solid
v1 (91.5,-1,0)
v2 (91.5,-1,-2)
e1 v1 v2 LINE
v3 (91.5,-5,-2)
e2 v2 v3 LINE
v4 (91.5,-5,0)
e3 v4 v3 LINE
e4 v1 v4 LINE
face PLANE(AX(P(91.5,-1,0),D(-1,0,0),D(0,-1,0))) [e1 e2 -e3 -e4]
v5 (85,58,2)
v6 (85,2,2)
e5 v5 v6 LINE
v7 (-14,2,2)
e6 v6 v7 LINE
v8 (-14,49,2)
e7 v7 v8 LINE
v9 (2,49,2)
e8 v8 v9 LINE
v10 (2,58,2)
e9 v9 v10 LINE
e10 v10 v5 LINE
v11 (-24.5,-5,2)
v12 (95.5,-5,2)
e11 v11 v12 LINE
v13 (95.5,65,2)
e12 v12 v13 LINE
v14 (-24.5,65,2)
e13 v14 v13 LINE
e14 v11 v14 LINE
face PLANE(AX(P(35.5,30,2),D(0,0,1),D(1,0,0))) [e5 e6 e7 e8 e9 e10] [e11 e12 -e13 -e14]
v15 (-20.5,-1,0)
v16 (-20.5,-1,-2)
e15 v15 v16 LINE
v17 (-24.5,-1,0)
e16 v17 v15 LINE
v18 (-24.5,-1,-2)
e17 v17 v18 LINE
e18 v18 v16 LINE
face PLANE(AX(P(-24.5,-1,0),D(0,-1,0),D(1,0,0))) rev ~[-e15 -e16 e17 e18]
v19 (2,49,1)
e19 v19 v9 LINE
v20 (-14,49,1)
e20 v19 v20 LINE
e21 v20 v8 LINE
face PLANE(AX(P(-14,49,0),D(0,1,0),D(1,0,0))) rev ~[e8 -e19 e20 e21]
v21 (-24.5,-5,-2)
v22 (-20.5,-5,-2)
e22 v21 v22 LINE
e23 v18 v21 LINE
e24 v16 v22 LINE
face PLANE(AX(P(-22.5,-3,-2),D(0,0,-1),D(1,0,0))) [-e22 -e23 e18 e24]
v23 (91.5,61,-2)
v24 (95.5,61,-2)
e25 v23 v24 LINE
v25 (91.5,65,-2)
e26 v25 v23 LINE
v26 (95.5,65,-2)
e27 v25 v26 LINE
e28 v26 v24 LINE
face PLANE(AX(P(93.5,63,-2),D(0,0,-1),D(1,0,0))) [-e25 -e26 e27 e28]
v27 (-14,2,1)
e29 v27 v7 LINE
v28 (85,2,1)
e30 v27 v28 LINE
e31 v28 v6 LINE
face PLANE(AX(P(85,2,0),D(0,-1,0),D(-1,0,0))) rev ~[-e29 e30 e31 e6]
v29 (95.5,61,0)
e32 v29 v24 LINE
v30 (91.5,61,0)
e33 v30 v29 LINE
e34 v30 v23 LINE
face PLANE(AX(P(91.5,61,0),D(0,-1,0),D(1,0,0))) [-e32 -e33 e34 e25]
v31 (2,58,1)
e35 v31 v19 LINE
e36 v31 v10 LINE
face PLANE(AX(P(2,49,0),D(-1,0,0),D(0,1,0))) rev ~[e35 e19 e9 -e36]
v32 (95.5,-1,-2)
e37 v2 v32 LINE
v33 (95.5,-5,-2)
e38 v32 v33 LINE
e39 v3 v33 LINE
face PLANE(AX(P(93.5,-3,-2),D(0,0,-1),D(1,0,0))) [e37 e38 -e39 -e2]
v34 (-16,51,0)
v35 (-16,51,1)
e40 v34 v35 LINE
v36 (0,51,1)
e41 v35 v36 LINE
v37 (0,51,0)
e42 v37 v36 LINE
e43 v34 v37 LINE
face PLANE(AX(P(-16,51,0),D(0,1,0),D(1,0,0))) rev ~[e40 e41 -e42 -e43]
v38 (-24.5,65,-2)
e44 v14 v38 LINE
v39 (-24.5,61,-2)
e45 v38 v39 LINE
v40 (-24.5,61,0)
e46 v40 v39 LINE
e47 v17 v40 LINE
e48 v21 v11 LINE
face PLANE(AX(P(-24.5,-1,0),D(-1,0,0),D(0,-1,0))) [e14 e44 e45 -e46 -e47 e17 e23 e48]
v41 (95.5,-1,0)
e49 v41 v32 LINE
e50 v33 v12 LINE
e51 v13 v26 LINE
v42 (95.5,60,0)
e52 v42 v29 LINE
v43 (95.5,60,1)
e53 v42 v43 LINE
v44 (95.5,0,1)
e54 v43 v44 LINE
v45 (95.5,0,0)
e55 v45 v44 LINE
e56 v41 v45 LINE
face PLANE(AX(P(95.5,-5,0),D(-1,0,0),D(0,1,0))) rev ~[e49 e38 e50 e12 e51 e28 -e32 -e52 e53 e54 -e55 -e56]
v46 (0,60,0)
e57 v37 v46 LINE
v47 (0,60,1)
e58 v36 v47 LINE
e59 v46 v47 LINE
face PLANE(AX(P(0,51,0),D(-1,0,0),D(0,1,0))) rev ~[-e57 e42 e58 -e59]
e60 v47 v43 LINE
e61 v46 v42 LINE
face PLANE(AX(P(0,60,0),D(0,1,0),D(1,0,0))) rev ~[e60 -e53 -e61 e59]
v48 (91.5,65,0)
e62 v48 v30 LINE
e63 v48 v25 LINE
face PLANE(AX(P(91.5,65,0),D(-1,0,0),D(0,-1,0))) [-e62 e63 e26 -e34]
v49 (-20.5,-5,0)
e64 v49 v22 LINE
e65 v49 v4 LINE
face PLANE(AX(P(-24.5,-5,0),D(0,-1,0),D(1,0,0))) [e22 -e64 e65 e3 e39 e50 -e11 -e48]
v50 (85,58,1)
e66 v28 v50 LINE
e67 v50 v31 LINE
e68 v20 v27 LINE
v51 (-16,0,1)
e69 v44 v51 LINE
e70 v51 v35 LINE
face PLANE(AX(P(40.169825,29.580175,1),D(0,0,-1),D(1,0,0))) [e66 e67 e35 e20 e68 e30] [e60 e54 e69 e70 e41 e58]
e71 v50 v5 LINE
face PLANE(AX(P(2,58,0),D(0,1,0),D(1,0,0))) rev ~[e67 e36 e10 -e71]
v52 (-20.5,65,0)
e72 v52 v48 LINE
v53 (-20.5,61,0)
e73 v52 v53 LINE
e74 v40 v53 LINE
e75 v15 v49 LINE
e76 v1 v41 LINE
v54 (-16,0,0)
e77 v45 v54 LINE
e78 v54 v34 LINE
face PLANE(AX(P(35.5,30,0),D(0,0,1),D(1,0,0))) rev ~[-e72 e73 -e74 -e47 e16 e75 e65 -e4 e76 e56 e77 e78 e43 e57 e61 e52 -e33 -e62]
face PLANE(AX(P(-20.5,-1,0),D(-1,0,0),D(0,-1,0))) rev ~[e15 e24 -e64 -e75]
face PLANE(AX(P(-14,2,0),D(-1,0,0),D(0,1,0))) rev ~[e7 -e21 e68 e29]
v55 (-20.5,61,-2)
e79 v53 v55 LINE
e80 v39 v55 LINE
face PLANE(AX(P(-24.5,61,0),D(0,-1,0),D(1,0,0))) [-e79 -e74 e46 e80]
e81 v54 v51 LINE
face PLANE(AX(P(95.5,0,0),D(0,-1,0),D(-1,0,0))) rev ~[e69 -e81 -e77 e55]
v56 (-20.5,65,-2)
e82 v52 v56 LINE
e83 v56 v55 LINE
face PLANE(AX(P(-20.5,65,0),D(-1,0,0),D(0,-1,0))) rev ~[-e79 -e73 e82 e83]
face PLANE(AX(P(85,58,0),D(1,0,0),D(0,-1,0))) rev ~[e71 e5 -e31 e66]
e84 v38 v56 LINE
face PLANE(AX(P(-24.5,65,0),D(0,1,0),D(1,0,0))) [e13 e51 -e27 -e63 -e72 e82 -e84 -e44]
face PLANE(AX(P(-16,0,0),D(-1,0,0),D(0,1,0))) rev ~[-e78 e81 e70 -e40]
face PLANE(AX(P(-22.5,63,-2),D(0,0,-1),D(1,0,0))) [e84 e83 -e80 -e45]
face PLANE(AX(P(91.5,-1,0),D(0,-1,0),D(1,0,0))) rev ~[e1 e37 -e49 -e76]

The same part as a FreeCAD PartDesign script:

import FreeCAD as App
import Part
import Sketcher
from FreeCAD import Vector

doc = App.newDocument("Part")
body = doc.addObject("PartDesign::Body", "Body")

# Sketch on XY plane
sketch1 = doc.addObject("Sketcher::SketchObject", "Sketch")
body.addObject(sketch1)
sketch1.AttachmentSupport = (doc.XY_Plane, [""])
sketch1.MapMode = "FlatFace"
sketch1.addGeometry([
    Part.LineSegment(Vector(-24, 65, 0), Vector(-24, -5, 0)),  # 0
    Part.LineSegment(Vector(-24, -5, 0), Vector(96, -5, 0)),  # 1
    Part.LineSegment(Vector(96, -5, 0), Vector(96, 65, 0)),  # 2
    Part.LineSegment(Vector(96, 65, 0), Vector(-24, 65, 0)),  # 3
    Part.LineSegment(Vector(-14, 49, 0), Vector(2, 49, 0)),  # 4
    Part.LineSegment(Vector(2, 49, 0), Vector(2, 58, 0)),  # 5
    Part.LineSegment(Vector(2, 58, 0), Vector(85, 58, 0)),  # 6
    Part.LineSegment(Vector(85, 58, 0), Vector(85, 2, 0)),  # 7
    Part.LineSegment(Vector(85, 2, 0), Vector(-14, 2, 0)),  # 8
    Part.LineSegment(Vector(-14, 2, 0), Vector(-14, 49, 0)),  # 9
], False)
sketch1.addConstraint([
    Sketcher.Constraint("Coincident", 0, 2, 1, 1),
    Sketcher.Constraint("Coincident", 1, 2, 2, 1),
    Sketcher.Constraint("Coincident", 2, 2, 3, 1),
    Sketcher.Constraint("Coincident", 3, 2, 0, 1),
    Sketcher.Constraint("Coincident", 4, 2, 5, 1),
    Sketcher.Constraint("Coincident", 5, 2, 6, 1),
    Sketcher.Constraint("Coincident", 6, 2, 7, 1),
    Sketcher.Constraint("Coincident", 7, 2, 8, 1),
    Sketcher.Constraint("Coincident", 8, 2, 9, 1),
    Sketcher.Constraint("Coincident", 9, 2, 4, 1),
    Sketcher.Constraint("Vertical", 0),
    Sketcher.Constraint("Horizontal", 1),
    Sketcher.Constraint("Vertical", 2),
    Sketcher.Constraint("Horizontal", 3),
    Sketcher.Constraint("Horizontal", 4),
    Sketcher.Constraint("Vertical", 5),
    Sketcher.Constraint("Horizontal", 6),
    Sketcher.Constraint("Vertical", 7),
    Sketcher.Constraint("Horizontal", 8),
    Sketcher.Constraint("Vertical", 9),
    Sketcher.Constraint("DistanceX", 1, 1, 1, 2, 120.0),
    Sketcher.Constraint("DistanceX", 4, 1, 4, 2, 16.0),
    Sketcher.Constraint("DistanceX", 6, 1, 6, 2, 83.0),
    Sketcher.Constraint("DistanceY", 0, 2, 0, 1, 70.0),
    Sketcher.Constraint("DistanceY", 5, 1, 5, 2, 9.0),
    Sketcher.Constraint("DistanceY", 7, 2, 7, 1, 56.0),
    Sketcher.Constraint("DistanceY", 0, 2, -1, 1, 5.0),
    Sketcher.Constraint("DistanceX", -1, 1, 4, 2, 2.0),
    Sketcher.Constraint("DistanceY", -1, 1, 4, 2, 49.0),
    Sketcher.Constraint("DistanceX", 0, 2, -1, 1, 24.5),
])
pad1 = doc.addObject("PartDesign::Pad", "Pad")
body.addObject(pad1)
pad1.Profile = sketch1
pad1.Length = 2

# Sketch on XY plane
sketch2 = doc.addObject("Sketcher::SketchObject", "Sketch001")
body.addObject(sketch2)
sketch2.AttachmentSupport = (doc.XY_Plane, [""])
sketch2.MapMode = "FlatFace"
sketch2.addGeometry([
    Part.LineSegment(Vector(96, 0, 0), Vector(-16, 0, 0)),  # 0
    Part.LineSegment(Vector(-16, 0, 0), Vector(-16, 51, 0)),  # 1
    Part.LineSegment(Vector(-16, 51, 0), Vector(0, 51, 0)),  # 2
    Part.LineSegment(Vector(0, 51, 0), Vector(0, 60, 0)),  # 3
    Part.LineSegment(Vector(0, 60, 0), Vector(96, 60, 0)),  # 4
    Part.LineSegment(Vector(96, 60, 0), Vector(96, 0, 0)),  # 5
], False)
sketch2.addConstraint([
    Sketcher.Constraint("Coincident", 0, 2, 1, 1),
    Sketcher.Constraint("Coincident", 1, 2, 2, 1),
    Sketcher.Constraint("Coincident", 2, 2, 3, 1),
    Sketcher.Constraint("Coincident", 3, 2, 4, 1),
    Sketcher.Constraint("Coincident", 4, 2, 5, 1),
    Sketcher.Constraint("Coincident", 5, 2, 0, 1),
    Sketcher.Constraint("Horizontal", 0),
    Sketcher.Constraint("Vertical", 1),
    Sketcher.Constraint("Horizontal", 2),
    Sketcher.Constraint("Vertical", 3),
    Sketcher.Constraint("Horizontal", 4),
    Sketcher.Constraint("Vertical", 5),
    Sketcher.Constraint("PointOnObject", 0, 2, -1),
    Sketcher.Constraint("PointOnObject", 2, 2, -2),
    Sketcher.Constraint("DistanceX", 2, 1, 2, 2, 16.0),
    Sketcher.Constraint("DistanceY", 1, 1, 1, 2, 51.0),
    Sketcher.Constraint("DistanceY", 3, 1, 3, 2, 9.0),
    Sketcher.Constraint("DistanceX", 0, 2, 0, 1, 111.5),
])
pocket1 = doc.addObject("PartDesign::Pocket", "Pocket")
body.addObject(pocket1)
pocket1.Profile = sketch2
pocket1.Length = 1
pocket1.Reversed = True

# Sketch on XY plane
sketch3 = doc.addObject("Sketcher::SketchObject", "Sketch002")
body.addObject(sketch3)
sketch3.AttachmentSupport = (doc.XY_Plane, [""])
sketch3.MapMode = "FlatFace"
sketch3.addGeometry([
    Part.LineSegment(Vector(-24.5, -5, 0), Vector(-24.5, -1, 0)),  # 0
    Part.LineSegment(Vector(-24.5, -1, 0), Vector(-20.5, -1, 0)),  # 1
    Part.LineSegment(Vector(-20.5, -1, 0), Vector(-20.5, -5, 0)),  # 2
    Part.LineSegment(Vector(-20.5, -5, 0), Vector(-24.5, -5, 0)),  # 3
    Part.LineSegment(Vector(-24.5, 61, 0), Vector(-24.5, 65, 0)),  # 4
    Part.LineSegment(Vector(-24.5, 65, 0), Vector(-20.5, 65, 0)),  # 5
    Part.LineSegment(Vector(-20.5, 65, 0), Vector(-20.5, 61, 0)),  # 6
    Part.LineSegment(Vector(-20.5, 61, 0), Vector(-24.5, 61, 0)),  # 7
    Part.LineSegment(Vector(91.5, -5, 0), Vector(91.5, -1, 0)),  # 8
    Part.LineSegment(Vector(91.5, -1, 0), Vector(95.5, -1, 0)),  # 9
    Part.LineSegment(Vector(95.5, -1, 0), Vector(95.5, -5, 0)),  # 10
    Part.LineSegment(Vector(95.5, -5, 0), Vector(91.5, -5, 0)),  # 11
    Part.LineSegment(Vector(91.5, 61, 0), Vector(91.5, 65, 0)),  # 12
    Part.LineSegment(Vector(91.5, 65, 0), Vector(95.5, 65, 0)),  # 13
    Part.LineSegment(Vector(95.5, 65, 0), Vector(95.5, 61, 0)),  # 14
    Part.LineSegment(Vector(95.5, 61, 0), Vector(91.5, 61, 0)),  # 15
], False)
sketch3.addConstraint([
    Sketcher.Constraint("Coincident", 0, 2, 1, 1),
    Sketcher.Constraint("Coincident", 1, 2, 2, 1),
    Sketcher.Constraint("Coincident", 2, 2, 3, 1),
    Sketcher.Constraint("Coincident", 3, 2, 0, 1),
    Sketcher.Constraint("Coincident", 4, 2, 5, 1),
    Sketcher.Constraint("Coincident", 5, 2, 6, 1),
    Sketcher.Constraint("Coincident", 6, 2, 7, 1),
    Sketcher.Constraint("Coincident", 7, 2, 4, 1),
    Sketcher.Constraint("Coincident", 8, 2, 9, 1),
    Sketcher.Constraint("Coincident", 9, 2, 10, 1),
    Sketcher.Constraint("Coincident", 10, 2, 11, 1),
    Sketcher.Constraint("Coincident", 11, 2, 8, 1),
    Sketcher.Constraint("Coincident", 12, 2, 13, 1),
    Sketcher.Constraint("Coincident", 13, 2, 14, 1),
    Sketcher.Constraint("Coincident", 14, 2, 15, 1),
    Sketcher.Constraint("Coincident", 15, 2, 12, 1),
    Sketcher.Constraint("Vertical", 0),
    Sketcher.Constraint("Horizontal", 1),
    Sketcher.Constraint("Vertical", 2),
    Sketcher.Constraint("Horizontal", 3),
    Sketcher.Constraint("Vertical", 4),
    Sketcher.Constraint("Horizontal", 5),
    Sketcher.Constraint("Vertical", 6),
    Sketcher.Constraint("Horizontal", 7),
    Sketcher.Constraint("Vertical", 8),
    Sketcher.Constraint("Horizontal", 9),
    Sketcher.Constraint("Vertical", 10),
    Sketcher.Constraint("Horizontal", 11),
    Sketcher.Constraint("Vertical", 12),
    Sketcher.Constraint("Horizontal", 13),
    Sketcher.Constraint("Vertical", 14),
    Sketcher.Constraint("Horizontal", 15),
    Sketcher.Constraint("Horizontal", 1, 2, 8, 2),
    Sketcher.Constraint("Horizontal", 3, 2, 10, 2),
    Sketcher.Constraint("Horizontal", 5, 2, 12, 2),
    Sketcher.Constraint("Horizontal", 7, 2, 14, 2),
    Sketcher.Constraint("Vertical", 3, 2, 4, 2),
    Sketcher.Constraint("Vertical", 2, 2, 5, 2),
    Sketcher.Constraint("Vertical", 11, 2, 12, 2),
    Sketcher.Constraint("Vertical", 10, 2, 13, 2),
    Sketcher.Constraint("Equal", 7, 9),
    Sketcher.Constraint("Equal", 15, 0),
    Sketcher.Constraint("Equal", 2, 4),
    Sketcher.Constraint("DistanceX", 1, 1, 1, 2, 4.0),
    Sketcher.Constraint("DistanceY", 0, 2, -1, 1, 1.0),
    Sketcher.Constraint("DistanceY", -1, 1, 4, 2, 65.0),
    Sketcher.Constraint("DistanceX", 1, 2, 8, 2, 112.0),
    Sketcher.Constraint("DistanceX", 0, 2, -1, 1, 24.5),
])
pad2 = doc.addObject("PartDesign::Pad", "Pad001")
body.addObject(pad2)
pad2.Profile = sketch3
pad2.Length = 2
pad2.Reversed = True

doc.recompute()
